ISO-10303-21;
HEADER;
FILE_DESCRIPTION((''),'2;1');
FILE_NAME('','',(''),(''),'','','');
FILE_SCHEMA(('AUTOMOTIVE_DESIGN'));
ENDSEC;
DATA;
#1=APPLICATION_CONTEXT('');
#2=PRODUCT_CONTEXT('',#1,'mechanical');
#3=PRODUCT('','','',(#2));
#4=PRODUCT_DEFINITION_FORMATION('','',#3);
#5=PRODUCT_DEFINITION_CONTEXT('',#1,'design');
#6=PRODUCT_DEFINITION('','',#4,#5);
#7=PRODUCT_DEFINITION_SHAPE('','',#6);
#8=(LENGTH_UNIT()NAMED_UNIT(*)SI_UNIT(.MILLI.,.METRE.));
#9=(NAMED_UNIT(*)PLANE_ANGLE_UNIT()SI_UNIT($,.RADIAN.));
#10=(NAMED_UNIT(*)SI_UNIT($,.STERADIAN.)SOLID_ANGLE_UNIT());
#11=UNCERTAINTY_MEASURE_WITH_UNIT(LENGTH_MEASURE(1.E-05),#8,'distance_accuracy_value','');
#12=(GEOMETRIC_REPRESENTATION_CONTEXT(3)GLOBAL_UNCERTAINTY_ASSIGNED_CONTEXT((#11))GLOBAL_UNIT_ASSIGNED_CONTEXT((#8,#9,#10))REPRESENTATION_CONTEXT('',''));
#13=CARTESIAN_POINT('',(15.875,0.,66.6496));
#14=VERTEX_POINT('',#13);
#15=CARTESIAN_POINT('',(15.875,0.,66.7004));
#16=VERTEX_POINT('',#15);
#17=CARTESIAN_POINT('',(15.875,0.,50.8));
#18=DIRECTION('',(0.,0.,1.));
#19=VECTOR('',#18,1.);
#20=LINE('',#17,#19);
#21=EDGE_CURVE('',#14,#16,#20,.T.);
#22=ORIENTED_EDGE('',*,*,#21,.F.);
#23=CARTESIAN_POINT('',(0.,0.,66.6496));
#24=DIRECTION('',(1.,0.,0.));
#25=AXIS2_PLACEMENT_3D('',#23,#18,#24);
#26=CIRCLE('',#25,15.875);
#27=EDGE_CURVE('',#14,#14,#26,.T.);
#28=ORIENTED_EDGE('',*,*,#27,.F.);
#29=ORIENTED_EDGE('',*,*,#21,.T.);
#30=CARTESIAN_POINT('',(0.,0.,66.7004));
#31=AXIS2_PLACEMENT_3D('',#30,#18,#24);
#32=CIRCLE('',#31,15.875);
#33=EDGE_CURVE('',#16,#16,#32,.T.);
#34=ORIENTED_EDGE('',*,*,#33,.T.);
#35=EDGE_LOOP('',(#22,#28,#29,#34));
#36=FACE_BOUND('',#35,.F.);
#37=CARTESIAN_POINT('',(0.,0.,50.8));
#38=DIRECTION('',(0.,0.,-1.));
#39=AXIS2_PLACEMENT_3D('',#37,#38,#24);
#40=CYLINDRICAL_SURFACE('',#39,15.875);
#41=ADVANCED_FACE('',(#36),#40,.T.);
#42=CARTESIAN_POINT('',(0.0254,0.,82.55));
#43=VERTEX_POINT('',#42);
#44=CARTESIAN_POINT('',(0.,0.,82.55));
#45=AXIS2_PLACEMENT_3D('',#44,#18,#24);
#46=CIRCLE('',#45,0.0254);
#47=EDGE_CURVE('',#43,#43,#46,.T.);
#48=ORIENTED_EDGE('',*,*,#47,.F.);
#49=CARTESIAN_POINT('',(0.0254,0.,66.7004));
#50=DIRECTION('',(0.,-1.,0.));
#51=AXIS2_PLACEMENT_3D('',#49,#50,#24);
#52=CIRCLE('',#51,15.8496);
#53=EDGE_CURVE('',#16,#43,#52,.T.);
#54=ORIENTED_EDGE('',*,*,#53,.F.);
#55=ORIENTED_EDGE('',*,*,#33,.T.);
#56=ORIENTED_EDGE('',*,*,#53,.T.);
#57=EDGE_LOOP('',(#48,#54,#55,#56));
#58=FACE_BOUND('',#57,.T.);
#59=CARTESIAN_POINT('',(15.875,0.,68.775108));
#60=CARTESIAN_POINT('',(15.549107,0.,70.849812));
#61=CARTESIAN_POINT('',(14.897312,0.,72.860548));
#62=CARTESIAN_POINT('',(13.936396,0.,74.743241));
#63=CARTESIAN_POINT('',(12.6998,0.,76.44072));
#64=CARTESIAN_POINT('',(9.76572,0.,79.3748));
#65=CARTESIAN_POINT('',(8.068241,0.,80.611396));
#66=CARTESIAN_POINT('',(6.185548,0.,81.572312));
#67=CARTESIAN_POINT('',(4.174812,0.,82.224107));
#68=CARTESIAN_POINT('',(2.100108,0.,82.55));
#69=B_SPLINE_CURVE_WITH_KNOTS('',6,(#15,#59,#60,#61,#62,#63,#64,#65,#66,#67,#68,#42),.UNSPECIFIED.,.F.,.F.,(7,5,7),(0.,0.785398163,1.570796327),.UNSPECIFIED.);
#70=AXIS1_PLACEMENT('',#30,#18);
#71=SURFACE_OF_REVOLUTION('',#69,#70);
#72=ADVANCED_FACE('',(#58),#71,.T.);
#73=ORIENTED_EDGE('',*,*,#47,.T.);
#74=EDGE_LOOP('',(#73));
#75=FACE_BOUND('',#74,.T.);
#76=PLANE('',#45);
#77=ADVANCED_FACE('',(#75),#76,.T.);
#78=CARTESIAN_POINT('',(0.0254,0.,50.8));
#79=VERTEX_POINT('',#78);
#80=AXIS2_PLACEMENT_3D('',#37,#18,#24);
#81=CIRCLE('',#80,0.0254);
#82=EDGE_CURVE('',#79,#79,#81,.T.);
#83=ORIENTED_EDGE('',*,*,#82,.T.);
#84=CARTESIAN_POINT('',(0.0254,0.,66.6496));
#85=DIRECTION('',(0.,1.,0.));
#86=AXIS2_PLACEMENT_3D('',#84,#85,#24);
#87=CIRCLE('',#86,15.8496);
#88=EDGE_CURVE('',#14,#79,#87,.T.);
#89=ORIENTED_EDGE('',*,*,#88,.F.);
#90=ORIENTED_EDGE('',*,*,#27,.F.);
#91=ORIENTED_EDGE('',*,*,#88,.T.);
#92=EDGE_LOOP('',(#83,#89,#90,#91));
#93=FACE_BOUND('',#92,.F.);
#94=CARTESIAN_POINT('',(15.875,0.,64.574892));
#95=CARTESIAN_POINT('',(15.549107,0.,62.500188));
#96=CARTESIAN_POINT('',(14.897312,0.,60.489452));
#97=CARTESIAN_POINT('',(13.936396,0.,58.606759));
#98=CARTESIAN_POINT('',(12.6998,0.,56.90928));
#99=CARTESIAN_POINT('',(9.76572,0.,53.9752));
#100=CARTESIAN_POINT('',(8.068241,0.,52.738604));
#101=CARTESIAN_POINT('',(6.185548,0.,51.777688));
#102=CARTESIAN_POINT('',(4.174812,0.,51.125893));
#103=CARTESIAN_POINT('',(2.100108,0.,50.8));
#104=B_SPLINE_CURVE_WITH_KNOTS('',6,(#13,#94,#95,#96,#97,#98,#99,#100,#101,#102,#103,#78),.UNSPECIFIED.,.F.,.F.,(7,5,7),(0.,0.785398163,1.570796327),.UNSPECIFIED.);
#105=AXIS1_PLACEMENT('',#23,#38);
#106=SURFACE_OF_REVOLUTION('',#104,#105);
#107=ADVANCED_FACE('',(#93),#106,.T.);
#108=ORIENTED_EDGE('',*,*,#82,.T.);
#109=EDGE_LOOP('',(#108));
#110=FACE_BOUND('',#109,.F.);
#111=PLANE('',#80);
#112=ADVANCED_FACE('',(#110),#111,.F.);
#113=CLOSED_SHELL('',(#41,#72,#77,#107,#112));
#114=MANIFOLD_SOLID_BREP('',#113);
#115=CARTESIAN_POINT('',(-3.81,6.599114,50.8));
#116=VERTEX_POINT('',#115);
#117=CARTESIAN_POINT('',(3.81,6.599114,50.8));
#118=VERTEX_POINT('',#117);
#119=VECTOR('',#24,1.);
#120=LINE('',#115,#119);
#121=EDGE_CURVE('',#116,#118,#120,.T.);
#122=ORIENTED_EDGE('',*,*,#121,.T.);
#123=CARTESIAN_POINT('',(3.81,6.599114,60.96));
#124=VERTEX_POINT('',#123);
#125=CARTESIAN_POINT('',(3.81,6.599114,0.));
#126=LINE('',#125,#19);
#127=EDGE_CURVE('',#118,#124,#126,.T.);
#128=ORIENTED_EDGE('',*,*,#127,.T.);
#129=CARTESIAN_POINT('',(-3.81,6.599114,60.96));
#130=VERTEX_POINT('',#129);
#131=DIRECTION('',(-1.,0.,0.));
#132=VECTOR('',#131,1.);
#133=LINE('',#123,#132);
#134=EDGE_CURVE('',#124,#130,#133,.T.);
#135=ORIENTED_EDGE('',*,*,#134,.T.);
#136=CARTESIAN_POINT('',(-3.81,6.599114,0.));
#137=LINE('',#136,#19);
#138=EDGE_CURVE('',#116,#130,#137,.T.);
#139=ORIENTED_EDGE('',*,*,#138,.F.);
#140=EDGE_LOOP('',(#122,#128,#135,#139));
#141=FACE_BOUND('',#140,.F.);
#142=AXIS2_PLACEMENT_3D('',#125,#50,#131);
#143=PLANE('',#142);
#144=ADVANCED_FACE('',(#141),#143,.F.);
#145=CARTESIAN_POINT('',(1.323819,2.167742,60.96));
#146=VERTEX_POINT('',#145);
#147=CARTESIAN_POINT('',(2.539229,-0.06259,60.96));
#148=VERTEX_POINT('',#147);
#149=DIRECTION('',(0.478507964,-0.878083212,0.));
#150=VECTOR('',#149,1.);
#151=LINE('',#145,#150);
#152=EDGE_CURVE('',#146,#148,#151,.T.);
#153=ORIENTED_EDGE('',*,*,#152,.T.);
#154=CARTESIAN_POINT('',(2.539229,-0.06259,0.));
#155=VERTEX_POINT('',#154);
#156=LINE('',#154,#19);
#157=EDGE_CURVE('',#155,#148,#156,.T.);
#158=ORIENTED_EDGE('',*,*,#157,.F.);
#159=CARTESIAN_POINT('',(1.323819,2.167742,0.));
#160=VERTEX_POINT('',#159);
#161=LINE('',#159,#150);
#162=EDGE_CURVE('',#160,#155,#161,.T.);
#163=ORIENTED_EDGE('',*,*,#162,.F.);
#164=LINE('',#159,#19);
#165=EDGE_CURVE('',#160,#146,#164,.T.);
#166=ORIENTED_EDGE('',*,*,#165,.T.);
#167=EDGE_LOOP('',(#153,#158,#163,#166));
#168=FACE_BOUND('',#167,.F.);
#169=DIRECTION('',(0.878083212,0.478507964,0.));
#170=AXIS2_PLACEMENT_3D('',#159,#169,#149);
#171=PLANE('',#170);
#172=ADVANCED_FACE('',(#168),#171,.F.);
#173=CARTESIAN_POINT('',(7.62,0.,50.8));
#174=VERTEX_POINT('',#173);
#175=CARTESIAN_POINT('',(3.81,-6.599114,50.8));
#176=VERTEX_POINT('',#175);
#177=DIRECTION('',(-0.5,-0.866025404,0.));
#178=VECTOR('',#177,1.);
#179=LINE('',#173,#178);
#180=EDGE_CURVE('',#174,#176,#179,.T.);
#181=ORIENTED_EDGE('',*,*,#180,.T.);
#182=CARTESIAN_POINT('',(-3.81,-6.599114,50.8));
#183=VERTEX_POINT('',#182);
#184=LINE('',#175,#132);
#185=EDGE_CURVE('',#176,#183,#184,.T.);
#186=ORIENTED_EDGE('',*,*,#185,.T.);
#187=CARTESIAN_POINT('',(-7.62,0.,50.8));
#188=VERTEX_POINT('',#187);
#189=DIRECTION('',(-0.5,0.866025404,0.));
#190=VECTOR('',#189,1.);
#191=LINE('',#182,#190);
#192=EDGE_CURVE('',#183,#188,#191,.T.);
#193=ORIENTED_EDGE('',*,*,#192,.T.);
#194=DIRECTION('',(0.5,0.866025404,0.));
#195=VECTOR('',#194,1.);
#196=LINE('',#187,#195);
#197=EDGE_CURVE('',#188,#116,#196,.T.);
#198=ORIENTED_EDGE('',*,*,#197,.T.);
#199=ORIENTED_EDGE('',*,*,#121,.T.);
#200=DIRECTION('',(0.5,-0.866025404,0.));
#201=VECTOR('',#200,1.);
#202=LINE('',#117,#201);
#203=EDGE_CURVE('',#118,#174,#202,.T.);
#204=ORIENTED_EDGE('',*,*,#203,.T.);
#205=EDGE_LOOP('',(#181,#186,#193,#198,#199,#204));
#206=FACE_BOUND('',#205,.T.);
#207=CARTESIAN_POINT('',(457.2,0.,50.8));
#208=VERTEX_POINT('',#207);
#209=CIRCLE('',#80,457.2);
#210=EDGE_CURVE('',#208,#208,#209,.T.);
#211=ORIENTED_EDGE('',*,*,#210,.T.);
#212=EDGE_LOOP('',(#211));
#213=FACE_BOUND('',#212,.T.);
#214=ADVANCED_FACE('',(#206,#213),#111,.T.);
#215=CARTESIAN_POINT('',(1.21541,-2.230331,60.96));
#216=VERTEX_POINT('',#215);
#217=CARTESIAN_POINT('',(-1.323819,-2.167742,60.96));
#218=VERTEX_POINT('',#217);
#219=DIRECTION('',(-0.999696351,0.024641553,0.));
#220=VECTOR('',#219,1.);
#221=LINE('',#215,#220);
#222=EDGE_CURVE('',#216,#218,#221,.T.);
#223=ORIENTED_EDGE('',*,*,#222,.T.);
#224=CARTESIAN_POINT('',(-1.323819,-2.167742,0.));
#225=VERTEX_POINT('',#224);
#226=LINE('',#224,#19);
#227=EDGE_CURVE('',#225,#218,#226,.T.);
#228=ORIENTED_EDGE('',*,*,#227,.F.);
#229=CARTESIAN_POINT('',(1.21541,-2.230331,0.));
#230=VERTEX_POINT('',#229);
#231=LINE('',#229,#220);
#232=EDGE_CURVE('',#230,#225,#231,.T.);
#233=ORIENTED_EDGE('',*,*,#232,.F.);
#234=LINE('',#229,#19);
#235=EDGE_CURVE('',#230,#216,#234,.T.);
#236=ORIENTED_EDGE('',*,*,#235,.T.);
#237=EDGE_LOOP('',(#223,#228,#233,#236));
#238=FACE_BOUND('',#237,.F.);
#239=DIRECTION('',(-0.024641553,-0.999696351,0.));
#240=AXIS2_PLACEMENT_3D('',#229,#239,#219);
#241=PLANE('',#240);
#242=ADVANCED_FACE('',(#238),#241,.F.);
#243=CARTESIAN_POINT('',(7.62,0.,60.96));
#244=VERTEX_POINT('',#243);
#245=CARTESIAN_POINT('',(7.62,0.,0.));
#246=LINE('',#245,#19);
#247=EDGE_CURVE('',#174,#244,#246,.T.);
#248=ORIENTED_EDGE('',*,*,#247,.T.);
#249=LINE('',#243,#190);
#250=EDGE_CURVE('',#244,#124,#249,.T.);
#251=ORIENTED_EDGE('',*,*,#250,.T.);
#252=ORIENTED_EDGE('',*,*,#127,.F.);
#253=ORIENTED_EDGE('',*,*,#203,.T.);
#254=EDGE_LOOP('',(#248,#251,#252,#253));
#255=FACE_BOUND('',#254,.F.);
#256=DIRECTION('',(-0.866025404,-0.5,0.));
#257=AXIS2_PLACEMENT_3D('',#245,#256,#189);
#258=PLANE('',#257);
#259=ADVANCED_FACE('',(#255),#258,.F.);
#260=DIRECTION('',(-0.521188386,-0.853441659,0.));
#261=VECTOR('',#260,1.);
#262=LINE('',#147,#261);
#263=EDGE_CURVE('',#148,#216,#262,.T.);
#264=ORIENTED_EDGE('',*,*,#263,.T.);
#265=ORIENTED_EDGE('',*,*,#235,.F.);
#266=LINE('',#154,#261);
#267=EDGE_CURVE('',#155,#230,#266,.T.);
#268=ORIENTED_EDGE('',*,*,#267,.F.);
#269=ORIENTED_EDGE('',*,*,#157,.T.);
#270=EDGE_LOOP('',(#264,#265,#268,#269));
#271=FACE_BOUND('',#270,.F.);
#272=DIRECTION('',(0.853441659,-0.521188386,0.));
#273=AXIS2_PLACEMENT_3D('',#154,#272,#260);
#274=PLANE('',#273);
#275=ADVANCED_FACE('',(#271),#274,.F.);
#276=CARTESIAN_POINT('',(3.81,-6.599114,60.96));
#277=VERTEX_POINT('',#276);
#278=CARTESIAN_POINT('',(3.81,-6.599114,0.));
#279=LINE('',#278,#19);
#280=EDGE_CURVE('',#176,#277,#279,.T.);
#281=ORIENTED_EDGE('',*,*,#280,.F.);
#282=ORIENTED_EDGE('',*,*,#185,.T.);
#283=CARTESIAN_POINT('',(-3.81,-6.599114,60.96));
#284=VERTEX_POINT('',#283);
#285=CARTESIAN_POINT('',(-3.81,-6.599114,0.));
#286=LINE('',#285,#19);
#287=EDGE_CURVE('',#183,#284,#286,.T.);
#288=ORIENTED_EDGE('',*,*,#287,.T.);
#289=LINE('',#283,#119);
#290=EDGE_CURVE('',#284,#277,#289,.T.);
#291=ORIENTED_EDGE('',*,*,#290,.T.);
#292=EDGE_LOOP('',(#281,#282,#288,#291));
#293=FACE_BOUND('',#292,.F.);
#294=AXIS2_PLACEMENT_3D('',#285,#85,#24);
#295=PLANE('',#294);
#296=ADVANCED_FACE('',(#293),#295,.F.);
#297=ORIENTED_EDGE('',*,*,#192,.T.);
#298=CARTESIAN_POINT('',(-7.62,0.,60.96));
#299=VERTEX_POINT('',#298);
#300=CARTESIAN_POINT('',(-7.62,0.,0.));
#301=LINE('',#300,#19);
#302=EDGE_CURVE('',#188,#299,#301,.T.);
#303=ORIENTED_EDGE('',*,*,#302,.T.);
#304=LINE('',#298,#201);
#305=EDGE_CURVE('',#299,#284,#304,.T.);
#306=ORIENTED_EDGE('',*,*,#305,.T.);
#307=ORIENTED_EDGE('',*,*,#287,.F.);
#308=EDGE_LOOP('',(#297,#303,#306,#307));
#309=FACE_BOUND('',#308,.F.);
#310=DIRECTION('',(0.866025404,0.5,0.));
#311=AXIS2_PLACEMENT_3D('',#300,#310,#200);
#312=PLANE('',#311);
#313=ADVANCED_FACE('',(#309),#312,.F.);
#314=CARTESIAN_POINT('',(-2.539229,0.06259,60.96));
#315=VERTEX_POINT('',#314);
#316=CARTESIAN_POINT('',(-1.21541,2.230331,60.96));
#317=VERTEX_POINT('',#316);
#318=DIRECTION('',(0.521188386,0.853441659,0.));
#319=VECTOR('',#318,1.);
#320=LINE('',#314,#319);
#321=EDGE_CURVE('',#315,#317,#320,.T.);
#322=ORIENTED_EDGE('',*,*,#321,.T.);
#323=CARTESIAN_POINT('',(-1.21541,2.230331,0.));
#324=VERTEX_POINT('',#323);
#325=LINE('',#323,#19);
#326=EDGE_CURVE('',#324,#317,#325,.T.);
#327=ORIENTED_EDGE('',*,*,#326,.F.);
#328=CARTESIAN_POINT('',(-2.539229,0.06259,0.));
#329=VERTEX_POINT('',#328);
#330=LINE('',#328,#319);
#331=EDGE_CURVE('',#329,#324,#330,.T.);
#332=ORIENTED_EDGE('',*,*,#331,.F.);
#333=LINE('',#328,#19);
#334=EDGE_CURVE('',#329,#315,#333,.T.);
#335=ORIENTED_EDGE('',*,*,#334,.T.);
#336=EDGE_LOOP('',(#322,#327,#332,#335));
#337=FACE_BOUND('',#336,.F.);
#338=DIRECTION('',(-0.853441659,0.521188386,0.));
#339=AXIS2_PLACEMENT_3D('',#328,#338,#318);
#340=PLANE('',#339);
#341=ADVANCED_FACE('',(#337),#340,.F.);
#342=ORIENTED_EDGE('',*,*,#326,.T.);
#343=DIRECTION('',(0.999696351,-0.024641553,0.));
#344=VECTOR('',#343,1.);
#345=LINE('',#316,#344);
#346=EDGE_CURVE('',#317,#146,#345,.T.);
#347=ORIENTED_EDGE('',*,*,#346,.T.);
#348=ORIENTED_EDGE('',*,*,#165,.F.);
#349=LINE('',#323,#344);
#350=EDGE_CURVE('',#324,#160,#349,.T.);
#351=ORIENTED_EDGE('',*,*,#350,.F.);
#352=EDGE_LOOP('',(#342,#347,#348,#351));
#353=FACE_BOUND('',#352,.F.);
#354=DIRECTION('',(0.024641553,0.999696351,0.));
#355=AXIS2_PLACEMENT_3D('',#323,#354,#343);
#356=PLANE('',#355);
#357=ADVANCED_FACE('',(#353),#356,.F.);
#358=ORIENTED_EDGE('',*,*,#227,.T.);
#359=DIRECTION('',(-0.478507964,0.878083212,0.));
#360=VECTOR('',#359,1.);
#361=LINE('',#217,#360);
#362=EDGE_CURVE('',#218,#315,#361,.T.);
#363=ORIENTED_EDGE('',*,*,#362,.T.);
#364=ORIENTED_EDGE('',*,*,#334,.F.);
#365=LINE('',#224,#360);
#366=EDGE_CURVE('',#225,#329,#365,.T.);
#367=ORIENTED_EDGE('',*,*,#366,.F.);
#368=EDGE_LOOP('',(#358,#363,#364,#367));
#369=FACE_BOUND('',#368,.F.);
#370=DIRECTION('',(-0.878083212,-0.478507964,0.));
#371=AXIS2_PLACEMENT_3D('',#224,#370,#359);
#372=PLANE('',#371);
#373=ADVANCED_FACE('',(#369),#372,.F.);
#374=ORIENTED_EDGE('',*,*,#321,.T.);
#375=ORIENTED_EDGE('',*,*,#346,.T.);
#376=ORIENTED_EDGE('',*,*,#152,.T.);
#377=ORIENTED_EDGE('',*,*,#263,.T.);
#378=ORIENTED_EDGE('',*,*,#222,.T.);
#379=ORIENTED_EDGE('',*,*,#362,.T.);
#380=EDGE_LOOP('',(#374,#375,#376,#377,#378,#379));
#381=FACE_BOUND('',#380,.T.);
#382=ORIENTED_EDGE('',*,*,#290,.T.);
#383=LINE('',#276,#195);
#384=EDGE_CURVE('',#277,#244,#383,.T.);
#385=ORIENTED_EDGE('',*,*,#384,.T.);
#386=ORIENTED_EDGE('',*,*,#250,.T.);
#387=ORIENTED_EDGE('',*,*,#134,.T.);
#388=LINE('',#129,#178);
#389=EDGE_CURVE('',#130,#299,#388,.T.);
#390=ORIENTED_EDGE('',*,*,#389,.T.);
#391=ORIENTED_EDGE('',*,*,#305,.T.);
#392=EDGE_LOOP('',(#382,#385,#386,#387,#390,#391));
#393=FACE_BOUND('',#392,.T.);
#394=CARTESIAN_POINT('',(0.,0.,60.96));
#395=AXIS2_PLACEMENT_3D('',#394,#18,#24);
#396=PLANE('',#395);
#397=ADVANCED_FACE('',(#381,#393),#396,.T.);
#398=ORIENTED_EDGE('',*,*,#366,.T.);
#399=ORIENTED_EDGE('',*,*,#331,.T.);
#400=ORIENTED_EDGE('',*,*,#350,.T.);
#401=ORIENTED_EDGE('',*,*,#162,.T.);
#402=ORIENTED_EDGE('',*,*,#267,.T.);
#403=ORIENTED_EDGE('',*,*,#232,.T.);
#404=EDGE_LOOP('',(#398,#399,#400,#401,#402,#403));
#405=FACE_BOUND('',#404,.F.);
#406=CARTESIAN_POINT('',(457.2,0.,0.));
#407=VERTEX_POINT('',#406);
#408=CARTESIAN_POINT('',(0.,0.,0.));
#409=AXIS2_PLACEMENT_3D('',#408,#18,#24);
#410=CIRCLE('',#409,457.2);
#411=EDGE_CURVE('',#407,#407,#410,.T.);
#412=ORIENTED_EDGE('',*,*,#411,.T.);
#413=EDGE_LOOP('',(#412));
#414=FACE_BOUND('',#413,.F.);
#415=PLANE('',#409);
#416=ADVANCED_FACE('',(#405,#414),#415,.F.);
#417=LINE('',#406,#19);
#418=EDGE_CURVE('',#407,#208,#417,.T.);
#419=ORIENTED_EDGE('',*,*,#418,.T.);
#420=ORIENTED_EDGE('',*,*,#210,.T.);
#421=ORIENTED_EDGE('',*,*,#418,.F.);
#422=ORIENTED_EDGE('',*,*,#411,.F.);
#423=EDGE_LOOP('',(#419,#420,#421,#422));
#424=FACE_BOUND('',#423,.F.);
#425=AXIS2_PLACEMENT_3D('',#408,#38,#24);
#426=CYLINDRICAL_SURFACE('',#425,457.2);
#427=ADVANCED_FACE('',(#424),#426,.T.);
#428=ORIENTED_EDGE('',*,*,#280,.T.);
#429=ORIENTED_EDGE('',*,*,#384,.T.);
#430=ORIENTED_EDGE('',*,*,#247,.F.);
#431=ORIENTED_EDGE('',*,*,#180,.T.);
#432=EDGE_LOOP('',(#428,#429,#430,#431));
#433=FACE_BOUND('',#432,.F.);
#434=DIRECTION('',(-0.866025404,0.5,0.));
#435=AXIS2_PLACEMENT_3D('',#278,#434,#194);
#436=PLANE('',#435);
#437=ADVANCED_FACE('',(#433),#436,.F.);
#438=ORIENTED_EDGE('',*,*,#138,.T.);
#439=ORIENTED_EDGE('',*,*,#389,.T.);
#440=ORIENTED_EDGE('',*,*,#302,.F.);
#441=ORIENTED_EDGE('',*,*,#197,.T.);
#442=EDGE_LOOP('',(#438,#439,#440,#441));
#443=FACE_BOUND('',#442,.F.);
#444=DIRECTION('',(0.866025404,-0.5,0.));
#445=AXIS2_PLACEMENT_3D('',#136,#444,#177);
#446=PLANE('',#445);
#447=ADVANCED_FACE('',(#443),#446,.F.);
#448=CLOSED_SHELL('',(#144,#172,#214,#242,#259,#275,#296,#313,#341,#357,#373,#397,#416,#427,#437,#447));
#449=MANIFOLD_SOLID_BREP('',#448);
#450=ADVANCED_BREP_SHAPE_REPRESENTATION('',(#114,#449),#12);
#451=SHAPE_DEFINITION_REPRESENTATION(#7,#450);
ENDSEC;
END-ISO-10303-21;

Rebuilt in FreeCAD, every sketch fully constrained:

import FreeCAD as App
import Part
import Sketcher

V = App.Vector
Q = App.Units.Quantity


def edges_at(feature, points):
    """Names of the edges that pass closest to the given points."""
    edges = feature.Shape.Edges
    near = lambda p: min(range(len(edges)), key=lambda i: edges[i].distToShape(Part.Vertex(*p))[0])
    return sorted({f"Edge{near(p) + 1}" for p in points})


def add_polygon(sketch, points):
    """Adds a closed chain of lines whose ends are joined by coincident constraints."""
    first, n = sketch.GeometryCount, len(points)
    for a, b in zip(points, points[1:] + points[:1]):
        sketch.addGeometry(Part.LineSegment(App.Vector(*a, 0), App.Vector(*b, 0)), False)
    for i in range(n):
        sketch.addConstraint(Sketcher.Constraint("Coincident", first + i, 2, first + (i + 1) % n, 1))

doc = App.newDocument("Part")
body = doc.addObject("PartDesign::Body", "Body")

# Sketch on XY plane
sketch1 = doc.addObject("Sketcher::SketchObject", "Sketch")
body.addObject(sketch1)
sketch1.AttachmentSupport = (doc.XY_Plane, [""])
sketch1.MapMode = "FlatFace"
sketch1.addGeometry(Part.Circle(V(0, 0, 0), V(0, 0, 1), 457), False)  # 0
add_polygon(sketch1, [(-8, 0), (-4, 7), (4, 7), (8, 0), (4, -7), (-4, -7)])  # lines 1-6
sketch1.addConstraint(Sketcher.Constraint("Horizontal", 2))
sketch1.addConstraint(Sketcher.Constraint("Horizontal", 5))
sketch1.addConstraint(Sketcher.Constraint("Coincident", 0, 3, -1, 1))
sketch1.addConstraint(Sketcher.Constraint("Symmetric", 1, 2, 4, 2, -1, 1))
sketch1.addConstraint(Sketcher.Constraint("Symmetric", 3, 2, 6, 2, -1, 1))
sketch1.addConstraint(Sketcher.Constraint("PointOnObject", 3, 2, -1))
sketch1.addConstraint(Sketcher.Constraint("Parallel", 3, 6))
sketch1.addConstraint(Sketcher.Constraint("Vertical", 2, 2, 4, 2))
sketch1.addConstraint(Sketcher.Constraint("Diameter", 0, Q("36 in")))
sketch1.addConstraint(Sketcher.Constraint("DistanceX", 2, 1, 2, 2, Q("0.3 in")))
sketch1.addConstraint(Sketcher.Constraint("Angle", 1, Q("60 deg")))
sketch1.addConstraint(Sketcher.Constraint("Distance", 1, Q("0.3 in")))
pad1 = doc.addObject("PartDesign::Pad", "Pad")
body.addObject(pad1)
pad1.Profile = sketch1
pad1.Length = Q("2 in")

# Sketch on XY plane
sketch2 = doc.addObject("Sketcher::SketchObject", "Sketch001")
body.addObject(sketch2)
sketch2.AttachmentSupport = (doc.XY_Plane, [""])
sketch2.MapMode = "FlatFace"
add_polygon(sketch2, [(7.6, 0), (3.8, 6.6), (-3.8, 6.6), (-7.6, 0), (-3.8, -6.6), (3.8, -6.6)])  # lines 0-5
add_polygon(sketch2, [(-2.5, 0.1), (-1.2, 2.2), (1.3, 2.2), (2.5, -0.1), (1.2, -2.2), (-1.3, -2.2)])  # lines 6-11
sketch2.addConstraint(Sketcher.Constraint("Horizontal", 1))
sketch2.addConstraint(Sketcher.Constraint("Horizontal", 4))
sketch2.addConstraint(Sketcher.Constraint("Symmetric", 0, 2, 3, 2, -1, 1))
sketch2.addConstraint(Sketcher.Constraint("Symmetric", 2, 2, 5, 2, -1, 1))
sketch2.addConstraint(Sketcher.Constraint("Symmetric", 6, 2, 9, 2, -1, 1))
sketch2.addConstraint(Sketcher.Constraint("Symmetric", 7, 2, 10, 2, -1, 1))
sketch2.addConstraint(Sketcher.Constraint("Symmetric", 8, 2, 11, 2, -1, 1))
sketch2.addConstraint(Sketcher.Constraint("PointOnObject", 2, 2, -1))
sketch2.addConstraint(Sketcher.Constraint("Parallel", 2, 5))
sketch2.addConstraint(Sketcher.Constraint("Vertical", 1, 2, 3, 2))
sketch2.addConstraint(Sketcher.Constraint("Equal", 6, 7))
sketch2.addConstraint(Sketcher.Constraint("Equal", 7, 8))
sketch2.addConstraint(Sketcher.Constraint("DistanceX", 1, 2, 1, 1, Q("0.3 in")))
sketch2.addConstraint(Sketcher.Constraint("Angle", 0, Q("120 deg")))
sketch2.addConstraint(Sketcher.Constraint("Distance", 0, Q("0.3 in")))
sketch2.addConstraint(Sketcher.Constraint("Distance", 6, Q("0.1 in")))
sketch2.addConstraint(Sketcher.Constraint("DistanceX", 6, 2, -1, 1, Q("1.21541 mm")))
sketch2.addConstraint(Sketcher.Constraint("DistanceY", -1, 1, 6, 2, Q("2.230331 mm")))
sketch2.addConstraint(Sketcher.Constraint("DistanceX", -1, 1, 7, 2, Q("1.323819 mm")))
pad2 = doc.addObject("PartDesign::Pad", "Pad001")
body.addObject(pad2)
pad2.Profile = sketch2
pad2.Length = Q("2.4 in")
body2 = doc.addObject("PartDesign::Body", "Body001")

# Sketch on XY plane
sketch3 = doc.addObject("Sketcher::SketchObject", "Sketch002")
body2.addObject(sketch3)
sketch3.AttachmentSupport = (doc.getObject("XY_Plane001"), [""])
sketch3.MapMode = "FlatFace"
sketch3.AttachmentOffset = App.Placement(V(0, 0, 2 * 25.4), App.Rotation())
sketch3.addGeometry(Part.Circle(V(0, 0, 0), V(0, 0, 1), 16), False)
sketch3.addConstraint(Sketcher.Constraint("Coincident", 0, 3, -1, 1))
sketch3.addConstraint(Sketcher.Constraint("Diameter", 0, Q("1.25 in")))
pad3 = doc.addObject("PartDesign::Pad", "Pad002")
body2.addObject(pad3)
pad3.Profile = sketch3
pad3.Length = Q("1.25 in")
doc.recompute()

fillet = doc.addObject("PartDesign::Fillet", "Fillet")
body2.addObject(fillet)
fillet.Base = (pad3, edges_at(pad3, [(-15.875, 0, 82.55), (-15.875, 0, 50.8)]))
fillet.Radius = Q("0.624 in")

doc.recompute()
